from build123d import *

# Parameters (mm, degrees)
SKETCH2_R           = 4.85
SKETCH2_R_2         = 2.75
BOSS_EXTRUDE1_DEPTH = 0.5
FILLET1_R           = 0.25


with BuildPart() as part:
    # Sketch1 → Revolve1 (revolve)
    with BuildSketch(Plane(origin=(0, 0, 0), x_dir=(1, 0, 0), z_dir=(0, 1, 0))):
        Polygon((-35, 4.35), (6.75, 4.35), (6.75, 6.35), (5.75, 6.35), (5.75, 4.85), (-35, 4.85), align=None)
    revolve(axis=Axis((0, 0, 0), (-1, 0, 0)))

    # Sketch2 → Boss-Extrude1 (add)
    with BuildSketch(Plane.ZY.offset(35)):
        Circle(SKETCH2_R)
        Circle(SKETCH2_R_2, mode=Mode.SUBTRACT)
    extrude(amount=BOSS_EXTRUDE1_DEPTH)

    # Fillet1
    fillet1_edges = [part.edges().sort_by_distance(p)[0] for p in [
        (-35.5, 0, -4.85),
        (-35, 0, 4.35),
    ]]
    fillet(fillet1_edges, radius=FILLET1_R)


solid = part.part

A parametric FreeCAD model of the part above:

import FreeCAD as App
import Part
import Sketcher
from FreeCAD import Vector
Q = App.Units.Quantity


def edges_at(feature, points):
    """Names of the edges that pass closest to the given points."""
    edges = feature.Shape.Edges
    near = lambda p: min(range(len(edges)), key=lambda i: edges[i].distToShape(Part.Vertex(*p))[0])
    return sorted({f"Edge{near(p) + 1}" for p in points})


def add_polygon(sketch, points):
    """Adds a closed chain of lines whose ends are joined by coincident constraints."""
    first, n = sketch.GeometryCount, len(points)
    for a, b in zip(points, points[1:] + points[:1]):
        sketch.addGeometry(Part.LineSegment(App.Vector(*a, 0), App.Vector(*b, 0)), False)
    for i in range(n):
        sketch.addConstraint(Sketcher.Constraint("Coincident", first + i, 2, first + (i + 1) % n, 1))

doc = App.newDocument("Part")
body = doc.addObject("PartDesign::Body", "Body")

# Sketch on XZ plane
sketch1 = doc.addObject("Sketcher::SketchObject", "Sketch")
body.addObject(sketch1)
sketch1.AttachmentSupport = (doc.XZ_Plane, [""])
sketch1.MapMode = "FlatFace"
add_polygon(sketch1, [(-35, -4.3), (6.8, -4.3), (6.8, -6.3), (5.8, -6.3), (5.8, -4.8), (-35, -4.8)])  # lines 0-5
sketch1.addConstraint(Sketcher.Constraint("Horizontal", 0))
sketch1.addConstraint(Sketcher.Constraint("Vertical", 1))
sketch1.addConstraint(Sketcher.Constraint("Horizontal", 2))
sketch1.addConstraint(Sketcher.Constraint("Vertical", 3))
sketch1.addConstraint(Sketcher.Constraint("Horizontal", 4))
sketch1.addConstraint(Sketcher.Constraint("Vertical", 5))
sketch1.addConstraint(Sketcher.Constraint("DistanceX", 2, 2, 2, 1, Q("1 mm")))
sketch1.addConstraint(Sketcher.Constraint("DistanceY", 1, 2, 1, 1, Q("2 mm")))
sketch1.addConstraint(Sketcher.Constraint("DistanceY", 3, 1, 3, 2, Q("1.5 mm")))
sketch1.addConstraint(Sketcher.Constraint("DistanceX", 4, 2, -1, 1, Q("35 mm")))
sketch1.addConstraint(Sketcher.Constraint("DistanceX", 0, 1, 0, 2, Q("41.75 mm")))
sketch1.addConstraint(Sketcher.Constraint("DistanceY", 0, 2, -1, 1, Q("4.35 mm")))
revolution = doc.addObject("PartDesign::Revolution", "Revolution")
body.addObject(revolution)
revolution.Profile = sketch1
revolution.ReferenceAxis = (sketch1, ["H_Axis"])
revolution.Angle = 360

# Sketch on YZ plane
sketch2 = doc.addObject("Sketcher::SketchObject", "Sketch001")
body.addObject(sketch2)
sketch2.AttachmentSupport = (doc.YZ_Plane, [""])
sketch2.MapMode = "FlatFace"
sketch2.AttachmentOffset = App.Placement(Vector(0, 0, -35), App.Rotation())
sketch2.addGeometry(Part.Circle(Vector(0, 0, 0), Vector(0, 0, 1), 4.8), False)
sketch2.addGeometry(Part.Circle(Vector(0, 0, 0), Vector(0, 0, 1), 2.8), False)
sketch2.addConstraint(Sketcher.Constraint("Coincident", 0, 3, -1, 1))
sketch2.addConstraint(Sketcher.Constraint("Coincident", 1, 3, -1, 1))
sketch2.addConstraint(Sketcher.Constraint("Diameter", 0, Q("9.7 mm")))
sketch2.addConstraint(Sketcher.Constraint("Diameter", 1, Q("5.5 mm")))
pad1 = doc.addObject("PartDesign::Pad", "Pad")
body.addObject(pad1)
pad1.Profile = sketch2
pad1.Length = 0.5
pad1.Reversed = True
doc.recompute()

fillet = doc.addObject("PartDesign::Fillet", "Fillet")
body.addObject(fillet)
fillet.Base = (pad1, edges_at(pad1, [(-35.5, 0, -4.85), (-35, 0, 4.35)]))
fillet.Radius = 0.25

doc.recompute()
